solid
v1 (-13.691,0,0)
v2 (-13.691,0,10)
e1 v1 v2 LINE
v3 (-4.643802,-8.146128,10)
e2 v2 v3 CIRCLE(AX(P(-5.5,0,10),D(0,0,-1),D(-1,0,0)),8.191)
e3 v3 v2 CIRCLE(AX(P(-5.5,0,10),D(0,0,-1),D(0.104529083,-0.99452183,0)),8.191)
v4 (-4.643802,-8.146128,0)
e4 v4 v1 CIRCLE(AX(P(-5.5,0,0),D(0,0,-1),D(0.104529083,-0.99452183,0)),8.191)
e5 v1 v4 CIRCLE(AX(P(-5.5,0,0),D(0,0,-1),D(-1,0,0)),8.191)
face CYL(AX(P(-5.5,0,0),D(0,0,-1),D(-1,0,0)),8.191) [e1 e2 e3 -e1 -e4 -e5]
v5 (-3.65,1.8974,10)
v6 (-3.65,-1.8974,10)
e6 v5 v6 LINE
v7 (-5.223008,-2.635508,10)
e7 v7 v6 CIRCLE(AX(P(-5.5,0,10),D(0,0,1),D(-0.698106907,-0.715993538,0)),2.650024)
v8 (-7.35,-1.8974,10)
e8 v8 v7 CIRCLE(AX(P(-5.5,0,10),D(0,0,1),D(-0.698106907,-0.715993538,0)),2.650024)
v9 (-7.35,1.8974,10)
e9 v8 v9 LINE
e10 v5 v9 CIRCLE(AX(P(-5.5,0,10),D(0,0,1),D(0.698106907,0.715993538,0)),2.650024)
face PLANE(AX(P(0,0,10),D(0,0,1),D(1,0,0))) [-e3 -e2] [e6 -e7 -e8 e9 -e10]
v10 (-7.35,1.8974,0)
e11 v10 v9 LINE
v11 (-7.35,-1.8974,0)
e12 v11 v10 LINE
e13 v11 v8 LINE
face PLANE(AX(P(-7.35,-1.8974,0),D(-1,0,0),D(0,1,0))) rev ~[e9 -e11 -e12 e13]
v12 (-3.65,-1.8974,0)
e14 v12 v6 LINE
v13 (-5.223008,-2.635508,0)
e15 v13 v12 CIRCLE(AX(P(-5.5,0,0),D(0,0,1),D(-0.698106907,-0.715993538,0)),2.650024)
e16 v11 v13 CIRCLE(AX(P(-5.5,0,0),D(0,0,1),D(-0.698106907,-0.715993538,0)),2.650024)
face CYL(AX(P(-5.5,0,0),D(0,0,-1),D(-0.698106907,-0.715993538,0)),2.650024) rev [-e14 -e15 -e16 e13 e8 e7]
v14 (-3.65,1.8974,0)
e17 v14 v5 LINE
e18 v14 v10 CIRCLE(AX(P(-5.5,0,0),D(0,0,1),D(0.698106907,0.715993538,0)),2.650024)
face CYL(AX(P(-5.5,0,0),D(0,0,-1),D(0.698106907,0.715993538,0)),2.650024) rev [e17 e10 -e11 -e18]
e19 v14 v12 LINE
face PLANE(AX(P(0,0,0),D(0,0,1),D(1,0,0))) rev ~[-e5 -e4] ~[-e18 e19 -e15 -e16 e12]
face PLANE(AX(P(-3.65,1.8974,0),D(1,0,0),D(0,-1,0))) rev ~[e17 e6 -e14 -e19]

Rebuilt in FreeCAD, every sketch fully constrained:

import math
import FreeCAD as App
import Part
import Sketcher

V = App.Vector

doc = App.newDocument("Part")
body = doc.addObject("PartDesign::Body", "Body")

sketch1 = body.newObject("Sketcher::SketchObject", "Sketch")
sketch1.AttachmentSupport = (doc.getObject("XY_Plane"), [""])
sketch1.MapMode = "FlatFace"
sketch1.addGeometry(Part.Circle(V(-5.5, 0, 0), V(0, 0, 1), 8.691), False)
sketch1.addGeometry(Part.ArcOfCircle(Part.Circle(V(-5.5, 0, 0), V(0, 0, 1), 2.650024), math.radians(-134.275318), math.radians(-84.000236)), False)
sketch1.addGeometry(Part.LineSegment(V(-7.35, -1.8974, 0), V(-7.35, 1.8974, 0)), False)
sketch1.addGeometry(Part.ArcOfCircle(Part.Circle(V(-5.5, 0, 0), V(0, 0, 1), 2.650024), math.radians(45.724682), math.radians(134.275318)), False)
sketch1.addGeometry(Part.LineSegment(V(-3.65, 1.8974, 0), V(-3.65, -1.8974, 0)), False)
sketch1.addGeometry(Part.ArcOfCircle(Part.Circle(V(-5.5, 0, 0), V(0, 0, 1), 2.650024), math.radians(-84.000236), math.radians(-45.724682)), False)
sketch1.addConstraint(Sketcher.Constraint("Coincident", 1, 1, 2, 1))
sketch1.addConstraint(Sketcher.Constraint("Coincident", 2, 2, 3, 2))
sketch1.addConstraint(Sketcher.Constraint("Coincident", 3, 1, 4, 1))
sketch1.addConstraint(Sketcher.Constraint("Coincident", 4, 2, 5, 2))
sketch1.addConstraint(Sketcher.Constraint("Tangent", 5, 1, 1, 2))
sketch1.addConstraint(Sketcher.Constraint("Vertical", 2))
sketch1.addConstraint(Sketcher.Constraint("Vertical", 4))
sketch1.addConstraint(Sketcher.Constraint("Coincident", 1, 3, 0, 3))
sketch1.addConstraint(Sketcher.Constraint("Coincident", 3, 3, 0, 3))
sketch1.addConstraint(Sketcher.Constraint("Equal", 1, 3))
sketch1.addConstraint(Sketcher.Constraint("Equal", 3, 5))
sketch1.addConstraint(Sketcher.Constraint("PointOnObject", 0, 3, -1))
sketch1.addConstraint(Sketcher.Constraint("Horizontal", 2, 2, 3, 1))
sketch1.addConstraint(Sketcher.Constraint("Radius", 1, 2.65))
sketch1.addConstraint(Sketcher.Constraint("Diameter", 0, 17.382))
sketch1.addConstraint(Sketcher.Constraint("DistanceX", 0, 3, -1, 1, 5.5))
sketch1.addConstraint(Sketcher.Constraint("DistanceX", 2, 2, 3, 1, 3.7))
sketch1.addConstraint(Sketcher.Constraint("DistanceX", 5, 1, -1, 1, 5.223))
pad1 = body.newObject("PartDesign::Pad", "Pad")
pad1.Profile = sketch1
pad1.Length = 10

sketch2 = body.newObject("Sketcher::SketchObject", "Sketch001")
sketch2.AttachmentSupport = (doc.getObject("XY_Plane"), [""])
sketch2.MapMode = "FlatFace"
sketch2.addGeometry(Part.Circle(V(-5.5, 0, 0), V(0, 0, 1), 8.691), False)
sketch2.addGeometry(Part.Circle(V(-5.5, 0, 0), V(0, 0, 1), 8.191), False)
sketch2.addConstraint(Sketcher.Constraint("Coincident", 1, 3, 0, 3))
sketch2.addConstraint(Sketcher.Constraint("PointOnObject", 0, 3, -1))
sketch2.addConstraint(Sketcher.Constraint("Diameter", 0, 17.382))
sketch2.addConstraint(Sketcher.Constraint("Diameter", 1, 16.382))
sketch2.addConstraint(Sketcher.Constraint("DistanceX", 0, 3, -1, 1, 5.5))
pocket1 = body.newObject("PartDesign::Pocket", "Pocket")
pocket1.Profile = sketch2
pocket1.Type = "ThroughAll"
pocket1.Reversed = True

doc.recompute()
